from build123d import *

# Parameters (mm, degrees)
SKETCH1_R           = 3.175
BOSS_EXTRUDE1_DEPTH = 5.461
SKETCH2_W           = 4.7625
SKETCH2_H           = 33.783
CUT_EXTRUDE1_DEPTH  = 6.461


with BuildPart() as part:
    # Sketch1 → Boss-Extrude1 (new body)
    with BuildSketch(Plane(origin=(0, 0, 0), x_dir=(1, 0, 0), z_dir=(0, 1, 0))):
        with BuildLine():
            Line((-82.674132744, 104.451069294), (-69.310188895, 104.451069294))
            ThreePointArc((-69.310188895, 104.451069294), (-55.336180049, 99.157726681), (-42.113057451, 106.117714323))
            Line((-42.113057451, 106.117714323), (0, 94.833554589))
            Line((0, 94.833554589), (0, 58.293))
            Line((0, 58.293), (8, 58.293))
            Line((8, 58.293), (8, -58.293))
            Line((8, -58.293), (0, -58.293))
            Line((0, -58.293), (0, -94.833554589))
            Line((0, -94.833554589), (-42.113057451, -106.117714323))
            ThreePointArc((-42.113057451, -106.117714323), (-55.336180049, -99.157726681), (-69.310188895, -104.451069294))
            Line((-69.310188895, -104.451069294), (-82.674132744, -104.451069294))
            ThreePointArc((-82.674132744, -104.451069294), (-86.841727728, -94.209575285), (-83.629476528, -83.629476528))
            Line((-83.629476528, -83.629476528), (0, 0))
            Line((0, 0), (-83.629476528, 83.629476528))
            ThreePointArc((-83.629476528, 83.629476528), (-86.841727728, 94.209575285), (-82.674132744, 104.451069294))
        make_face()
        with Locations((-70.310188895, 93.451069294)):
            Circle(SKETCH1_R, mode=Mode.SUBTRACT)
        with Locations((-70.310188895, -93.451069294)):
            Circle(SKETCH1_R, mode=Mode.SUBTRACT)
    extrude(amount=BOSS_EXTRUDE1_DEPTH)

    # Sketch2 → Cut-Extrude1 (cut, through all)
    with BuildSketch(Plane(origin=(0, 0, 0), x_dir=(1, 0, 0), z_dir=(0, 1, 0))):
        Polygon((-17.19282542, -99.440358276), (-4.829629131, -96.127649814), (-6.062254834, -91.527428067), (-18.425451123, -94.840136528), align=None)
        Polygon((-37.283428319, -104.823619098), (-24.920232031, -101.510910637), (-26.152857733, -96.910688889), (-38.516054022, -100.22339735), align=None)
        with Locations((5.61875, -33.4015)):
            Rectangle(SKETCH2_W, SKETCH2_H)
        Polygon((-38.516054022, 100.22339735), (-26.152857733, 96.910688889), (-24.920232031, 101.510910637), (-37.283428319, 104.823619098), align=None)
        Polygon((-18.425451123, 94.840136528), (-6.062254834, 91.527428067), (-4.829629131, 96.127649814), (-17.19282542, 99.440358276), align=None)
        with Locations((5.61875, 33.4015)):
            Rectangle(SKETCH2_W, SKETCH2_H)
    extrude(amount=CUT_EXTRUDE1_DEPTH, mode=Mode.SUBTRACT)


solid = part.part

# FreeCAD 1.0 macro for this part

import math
import FreeCAD as App
import Part
import Sketcher
from FreeCAD import Vector
Q = App.Units.Quantity


def add_polygon(sketch, points):
    """Adds a closed chain of lines whose ends are joined by coincident constraints."""
    first, n = sketch.GeometryCount, len(points)
    for a, b in zip(points, points[1:] + points[:1]):
        sketch.addGeometry(Part.LineSegment(App.Vector(*a, 0), App.Vector(*b, 0)), False)
    for i in range(n):
        sketch.addConstraint(Sketcher.Constraint("Coincident", first + i, 2, first + (i + 1) % n, 1))

doc = App.newDocument("Part")
body = doc.addObject("PartDesign::Body", "Body")

# Sketch on XZ plane
sketch1 = doc.addObject("Sketcher::SketchObject", "Sketch")
body.addObject(sketch1)
sketch1.AttachmentSupport = (doc.XZ_Plane, [""])
sketch1.MapMode = "FlatFace"
sketch1.addGeometry([
    Part.LineSegment(Vector(-69.310189, -104.451069, 0), Vector(-82.674133, -104.451069, 0)),  # 0
    Part.ArcOfCircle(Part.Circle(Vector(-70.310189, -93.451069, 0), Vector(0, 0, 1), 16.548931), math.radians(143.595076), math.radians(221.65897)),  # 1
    Part.LineSegment(Vector(-83.629477, -83.629477, 0), Vector(0, 0, 0)),  # 2
    Part.LineSegment(Vector(0, 0, 0), Vector(-83.629477, 83.629477, 0)),  # 3
    Part.ArcOfCircle(Part.Circle(Vector(-70.310189, 93.451069, 0), Vector(0, 0, 1), 16.548931), math.radians(138.34103), math.radians(216.404924)),  # 4
    Part.LineSegment(Vector(-82.674133, 104.451069, 0), Vector(-69.310189, 104.451069, 0)),  # 5
    Part.ArcOfCircle(Part.Circle(Vector(-56.448711, 117.312548, 0), Vector(0, 0, 1), 18.188877), math.radians(-135), math.radians(-37.986579)),  # 6
    Part.LineSegment(Vector(-42.113057, 106.117714, 0), Vector(0, 94.833555, 0)),  # 7
    Part.LineSegment(Vector(0, 94.833555, 0), Vector(0, 58.293, 0)),  # 8
    Part.LineSegment(Vector(0, 58.293, 0), Vector(8, 58.293, 0)),  # 9
    Part.LineSegment(Vector(8, 58.293, 0), Vector(8, -58.293, 0)),  # 10
    Part.LineSegment(Vector(8, -58.293, 0), Vector(0, -58.293, 0)),  # 11
    Part.LineSegment(Vector(0, -58.293, 0), Vector(0, -94.833555, 0)),  # 12
    Part.LineSegment(Vector(0, -94.833555, 0), Vector(-42.113057, -106.117714, 0)),  # 13
    Part.ArcOfCircle(Part.Circle(Vector(-56.448711, -117.312548, 0), Vector(0, 0, 1), 18.188877), math.radians(37.986579), math.radians(135)),  # 14
    Part.Circle(Vector(-70.310189, 93.451069, 0), Vector(0, 0, 1), 3.175),  # 15
    Part.Circle(Vector(-70.310189, -93.451069, 0), Vector(0, 0, 1), 3.175),  # 16
], False)
sketch1.addConstraint([
    Sketcher.Constraint("Coincident", 0, 2, 1, 2),
    Sketcher.Constraint("Coincident", 1, 1, 2, 1),
    Sketcher.Constraint("Coincident", 2, 2, 3, 1),
    Sketcher.Constraint("Coincident", 3, 2, 4, 2),
    Sketcher.Constraint("Coincident", 4, 1, 5, 1),
    Sketcher.Constraint("Coincident", 5, 2, 6, 1),
    Sketcher.Constraint("Coincident", 6, 2, 7, 1),
    Sketcher.Constraint("Coincident", 7, 2, 8, 1),
    Sketcher.Constraint("Coincident", 8, 2, 9, 1),
    Sketcher.Constraint("Coincident", 9, 2, 10, 1),
    Sketcher.Constraint("Coincident", 10, 2, 11, 1),
    Sketcher.Constraint("Coincident", 11, 2, 12, 1),
    Sketcher.Constraint("Coincident", 12, 2, 13, 1),
    Sketcher.Constraint("Coincident", 13, 2, 14, 1),
    Sketcher.Constraint("Coincident", 14, 2, 0, 1),
    Sketcher.Constraint("Horizontal", 0),
    Sketcher.Constraint("Horizontal", 5),
    Sketcher.Constraint("Vertical", 8),
    Sketcher.Constraint("Horizontal", 9),
    Sketcher.Constraint("Vertical", 10),
    Sketcher.Constraint("Horizontal", 11),
    Sketcher.Constraint("Vertical", 12),
    Sketcher.Constraint("Coincident", 2, 2, -1, 1),
    Sketcher.Constraint("Coincident", 15, 3, 4, 3),
    Sketcher.Constraint("Coincident", 16, 3, 1, 3),
    Sketcher.Constraint("Equal", 1, 4),
    Sketcher.Constraint("Equal", 6, 14),
    Sketcher.Constraint("Equal", 15, 16),
    Sketcher.Constraint("Symmetric", 8, 2, 11, 2, -1, 1),
    Sketcher.Constraint("Symmetric", 1, 3, 4, 3, -1),
    Sketcher.Constraint("Symmetric", 6, 3, 14, 3, -1),
    Sketcher.Constraint("Symmetric", 7, 2, 12, 2, -1),
    Sketcher.Constraint("Perpendicular", 2, 3),
    Sketcher.Constraint("Vertical", 1, 1, 3, 2),
    Sketcher.Constraint("Vertical", 0, 2, 4, 1),
    Sketcher.Constraint("Vertical", 6, 2, 13, 2),
    Sketcher.Constraint("Diameter", 15, Q("0.25 in")),
    Sketcher.Constraint("Angle", 7, Q("-15 deg")),
    Sketcher.Constraint("DistanceY", 10, 2, 10, 1, Q("4.59 in")),
    Sketcher.Constraint("Radius", 1, 16.548931),
    Sketcher.Constraint("DistanceX", 9, 1, 9, 2, 8.0),
    Sketcher.Constraint("Radius", 6, 18.188877),
    Sketcher.Constraint("DistanceY", 0, 2, 1, 3, 11.0),
    Sketcher.Constraint("DistanceX", 15, 3, 5, 2, 1.0),
    Sketcher.Constraint("Distance", 2, 118.26994),
    Sketcher.Constraint("DistanceY", 8, 2, 8, 1, 36.540555),
    Sketcher.Constraint("DistanceX", 1, 3, -1, 1, 70.310189),
    Sketcher.Constraint("DistanceX", 6, 3, -1, 1, 56.448711),
])
pad1 = doc.addObject("PartDesign::Pad", "Pad")
body.addObject(pad1)
pad1.Profile = sketch1
pad1.Length = Q("0.215 in")
pad1.Reversed = True

# Sketch on XZ plane
sketch2 = doc.addObject("Sketcher::SketchObject", "Sketch001")
body.addObject(sketch2)
sketch2.AttachmentSupport = (doc.XZ_Plane, [""])
sketch2.MapMode = "FlatFace"
add_polygon(sketch2, [(-17.192825, 99.440358), (-4.829629, 96.12765), (-6.062255, 91.527428), (-18.425451, 94.840137)])  # lines 0-3
add_polygon(sketch2, [(-37.283428, 104.823619), (-24.920232, 101.510911), (-26.152858, 96.910689), (-38.516054, 100.223397)])  # lines 4-7
add_polygon(sketch2, [(3.2375, 16.51), (3.2375, 50.293), (8, 50.293), (8, 16.51)])  # lines 8-11
add_polygon(sketch2, [(-38.516054, -100.223397), (-26.152858, -96.910689), (-24.920232, -101.510911), (-37.283428, -104.823619)])  # lines 12-15
add_polygon(sketch2, [(-18.425451, -94.840137), (-6.062255, -91.527428), (-4.829629, -96.12765), (-17.192825, -99.440358)])  # lines 16-19
add_polygon(sketch2, [(3.2375, -50.293), (3.2375, -16.51), (8, -16.51), (8, -50.293)])  # lines 20-23
sketch2.addConstraint([
    Sketcher.Constraint("Vertical", 8),
    Sketcher.Constraint("Horizontal", 9),
    Sketcher.Constraint("Vertical", 10),
    Sketcher.Constraint("Horizontal", 11),
    Sketcher.Constraint("Vertical", 20),
    Sketcher.Constraint("Horizontal", 21),
    Sketcher.Constraint("Vertical", 22),
    Sketcher.Constraint("Horizontal", 23),
    Sketcher.Constraint("Symmetric", 5, 2, 12, 2, -1),
    Sketcher.Constraint("Symmetric", 4, 2, 13, 2, -1),
    Sketcher.Constraint("Symmetric", 7, 2, 14, 2, -1),
    Sketcher.Constraint("Symmetric", 6, 2, 15, 2, -1),
    Sketcher.Constraint("Symmetric", 1, 2, 16, 2, -1),
    Sketcher.Constraint("Symmetric", 0, 2, 17, 2, -1),
    Sketcher.Constraint("Symmetric", 3, 2, 18, 2, -1),
    Sketcher.Constraint("Symmetric", 2, 2, 19, 2, -1),
    Sketcher.Constraint("Symmetric", 11, 2, 20, 2, -1),
    Sketcher.Constraint("Symmetric", 9, 2, 22, 2, -1),
    Sketcher.Constraint("Perpendicular", 0, 1),
    Sketcher.Constraint("Perpendicular", 1, 2),
    Sketcher.Constraint("Perpendicular", 2, 3),
    Sketcher.Constraint("Perpendicular", 3, 4),
    Sketcher.Constraint("Perpendicular", 4, 5),
    Sketcher.Constraint("Perpendicular", 5, 6),
    Sketcher.Constraint("Perpendicular", 6, 7),
    Sketcher.Constraint("Equal", 2, 4),
    Sketcher.Constraint("Equal", 3, 5),
    Sketcher.Constraint("Angle", 0, Q("-15 deg")),
    Sketcher.Constraint("DistanceY", 20, 2, 11, 2, Q("1.3 in")),
    Sketcher.Constraint("DistanceX", 9, 1, 9, 2, Q("0.1875 in")),
    Sketcher.Constraint("Distance", 1, Q("0.1875 in")),
    Sketcher.Constraint("DistanceY", 8, 1, 8, 2, 33.783),
    Sketcher.Constraint("DistanceX", 4, 2, 2, 2, Q("0.2557 in")),
    Sketcher.Constraint("DistanceX", -1, 1, 8, 2, 3.2375),
    Sketcher.Constraint("DistanceX", 6, 2, 1, 2, 32.453799),
    Sketcher.Constraint("DistanceX", 0, 2, -1, 1, 4.829629),
    Sketcher.Constraint("DistanceY", -1, 1, 0, 2, 96.12765),
    Sketcher.Constraint("DistanceY", -1, 1, 4, 2, 101.510911),
])
pocket1 = doc.addObject("PartDesign::Pocket", "Pocket")
body.addObject(pocket1)
pocket1.Profile = sketch2
pocket1.Type = "ThroughAll"

doc.recompute()
